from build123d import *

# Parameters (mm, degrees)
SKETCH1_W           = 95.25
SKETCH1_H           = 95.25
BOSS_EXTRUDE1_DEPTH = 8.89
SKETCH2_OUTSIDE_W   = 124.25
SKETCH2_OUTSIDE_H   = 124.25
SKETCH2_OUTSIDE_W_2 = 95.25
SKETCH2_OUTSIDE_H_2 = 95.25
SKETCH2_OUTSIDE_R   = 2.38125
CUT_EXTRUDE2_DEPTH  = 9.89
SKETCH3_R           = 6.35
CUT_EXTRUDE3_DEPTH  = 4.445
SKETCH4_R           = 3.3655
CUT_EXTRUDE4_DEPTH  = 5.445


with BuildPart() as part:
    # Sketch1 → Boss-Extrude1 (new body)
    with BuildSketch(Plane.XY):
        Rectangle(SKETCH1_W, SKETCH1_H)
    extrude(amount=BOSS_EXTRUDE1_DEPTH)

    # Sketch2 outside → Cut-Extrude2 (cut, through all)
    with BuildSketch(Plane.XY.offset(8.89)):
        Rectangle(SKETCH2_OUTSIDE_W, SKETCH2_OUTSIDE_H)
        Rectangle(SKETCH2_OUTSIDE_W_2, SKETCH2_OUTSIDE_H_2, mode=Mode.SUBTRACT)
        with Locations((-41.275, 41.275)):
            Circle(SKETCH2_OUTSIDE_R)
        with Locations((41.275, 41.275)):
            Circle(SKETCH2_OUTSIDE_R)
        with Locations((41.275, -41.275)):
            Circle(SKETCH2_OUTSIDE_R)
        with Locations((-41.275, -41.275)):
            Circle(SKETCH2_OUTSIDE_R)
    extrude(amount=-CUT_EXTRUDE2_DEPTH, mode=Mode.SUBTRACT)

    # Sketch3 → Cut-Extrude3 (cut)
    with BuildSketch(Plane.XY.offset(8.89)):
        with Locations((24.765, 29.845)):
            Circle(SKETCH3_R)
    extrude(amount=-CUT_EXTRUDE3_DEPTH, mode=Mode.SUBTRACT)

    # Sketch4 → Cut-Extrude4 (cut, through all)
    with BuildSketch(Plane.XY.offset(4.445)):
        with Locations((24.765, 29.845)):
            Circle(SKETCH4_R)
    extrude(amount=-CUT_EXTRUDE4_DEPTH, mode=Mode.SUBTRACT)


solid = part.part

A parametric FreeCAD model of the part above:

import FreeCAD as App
import Part
import Sketcher
from FreeCAD import Vector
Q = App.Units.Quantity


def add_polygon(sketch, points):
    """Adds a closed chain of lines whose ends are joined by coincident constraints."""
    first, n = sketch.GeometryCount, len(points)
    for a, b in zip(points, points[1:] + points[:1]):
        sketch.addGeometry(Part.LineSegment(App.Vector(*a, 0), App.Vector(*b, 0)), False)
    for i in range(n):
        sketch.addConstraint(Sketcher.Constraint("Coincident", first + i, 2, first + (i + 1) % n, 1))

doc = App.newDocument("Part")
params = doc.addObject("Spreadsheet::Sheet", "Params")
for row, (alias, value) in enumerate([
    ("sketch1_width", "3.75 in"),
    ("pad1_length", "0.35 in"),
    ("sketch2_diameter", "0.1875 in"),
    ("sketch2_width", "3.75 in"),
    ("sketch3_diameter", "0.5 in"),
    ("pocket2_length", "0.175 in"),
    ("sketch4_diameter", "0.265 in"),
], start=1):
    params.set(f"A{row}", alias)
    params.set(f"B{row}", "=" + value)
    params.setAlias(f"B{row}", alias)

body = doc.addObject("PartDesign::Body", "Body")

# Sketch on XY plane
sketch1 = body.newObject("Sketcher::SketchObject", "Sketch")
sketch1.AttachmentSupport = (doc.getObject("XY_Plane"), [""])
sketch1.MapMode = "FlatFace"
add_polygon(sketch1, [(-48, 48), (-48, -48), (48, -48), (48, 48)])  # lines 0-3
sketch1.addConstraint(Sketcher.Constraint("Vertical", 0))
sketch1.addConstraint(Sketcher.Constraint("Horizontal", 1))
sketch1.addConstraint(Sketcher.Constraint("Vertical", 2))
sketch1.addConstraint(Sketcher.Constraint("Horizontal", 3))
sketch1.addConstraint(Sketcher.Constraint("Symmetric", 0, 2, 2, 2, -1, 1))
sketch1.addConstraint(Sketcher.Constraint("Equal", 3, 0))
sketch1.addConstraint(Sketcher.Constraint("DistanceX", 1, 1, 1, 2, Q("3.75 in")))
sketch1.setExpression("Constraints[10]", "Params.sketch1_width")
pad1 = body.newObject("PartDesign::Pad", "Pad")
pad1.Profile = sketch1
pad1.setExpression("Length", "Params.pad1_length")

# Sketch on XY plane
sketch2 = body.newObject("Sketcher::SketchObject", "Sketch001")
sketch2.AttachmentSupport = (doc.getObject("XY_Plane"), [""])
sketch2.MapMode = "FlatFace"
sketch2.AttachmentOffset = App.Placement(Vector(0, 0, 0.35 * 25.4), App.Rotation())
add_polygon(sketch2, [(-62.1, 62.1), (-62.1, -62.1), (62.1, -62.1), (62.1, 62.1)])  # lines 0-3
add_polygon(sketch2, [(47.6, -47.6), (-47.6, -47.6), (-47.6, 47.6), (47.6, 47.6)])  # lines 4-7
sketch2.addGeometry(Part.Circle(Vector(-41.3, 41.3, 0), Vector(0, 0, 1), 2.4), False)  # 8
sketch2.addGeometry(Part.Circle(Vector(41.3, 41.3, 0), Vector(0, 0, 1), 2.4), False)  # 9
sketch2.addGeometry(Part.Circle(Vector(41.3, -41.3, 0), Vector(0, 0, 1), 2.4), False)  # 10
sketch2.addGeometry(Part.Circle(Vector(-41.3, -41.3, 0), Vector(0, 0, 1), 2.4), False)  # 11
sketch2.addConstraint(Sketcher.Constraint("Vertical", 0))
sketch2.addConstraint(Sketcher.Constraint("Horizontal", 1))
sketch2.addConstraint(Sketcher.Constraint("Vertical", 2))
sketch2.addConstraint(Sketcher.Constraint("Horizontal", 3))
sketch2.addConstraint(Sketcher.Constraint("Horizontal", 4))
sketch2.addConstraint(Sketcher.Constraint("Vertical", 5))
sketch2.addConstraint(Sketcher.Constraint("Horizontal", 6))
sketch2.addConstraint(Sketcher.Constraint("Vertical", 7))
sketch2.addConstraint(Sketcher.Constraint("Equal", 8, 9))
sketch2.addConstraint(Sketcher.Constraint("Equal", 9, 10))
sketch2.addConstraint(Sketcher.Constraint("Equal", 10, 11))
sketch2.addConstraint(Sketcher.Constraint("Symmetric", 8, 3, 10, 3, -1, 1))
sketch2.addConstraint(Sketcher.Constraint("Symmetric", 9, 3, 11, 3, -1, 1))
sketch2.addConstraint(Sketcher.Constraint("Symmetric", 0, 2, 2, 2, -1, 1))
sketch2.addConstraint(Sketcher.Constraint("Symmetric", 4, 2, 6, 2, -1, 1))
sketch2.addConstraint(Sketcher.Constraint("Symmetric", 8, 3, 9, 3, -2))
sketch2.addConstraint(Sketcher.Constraint("Equal", 3, 0))
sketch2.addConstraint(Sketcher.Constraint("Equal", 6, 5))
sketch2.addConstraint(Sketcher.Constraint("Diameter", 8, Q("0.1875 in")))
sketch2.addConstraint(Sketcher.Constraint("DistanceX", 4, 2, 4, 1, Q("3.75 in")))
sketch2.addConstraint(Sketcher.Constraint("DistanceY", 4, 2, 8, 3, Q("3.5 in")))
sketch2.addConstraint(Sketcher.Constraint("DistanceX", 4, 2, 10, 3, Q("3.5 in")))
sketch2.addConstraint(Sketcher.Constraint("DistanceX", 1, 1, 1, 2, Q("124.25 mm")))
sketch2.setExpression("Constraints[26]", "Params.sketch2_diameter")
sketch2.setExpression("Constraints[27]", "Params.sketch2_width")
pocket1 = body.newObject("PartDesign::Pocket", "Pocket")
pocket1.Profile = sketch2
pocket1.Type = "ThroughAll"

# Sketch on XY plane
sketch3 = body.newObject("Sketcher::SketchObject", "Sketch002")
sketch3.AttachmentSupport = (doc.getObject("XY_Plane"), [""])
sketch3.MapMode = "FlatFace"
sketch3.AttachmentOffset = App.Placement(Vector(0, 0, 0.35 * 25.4), App.Rotation())
sketch3.addGeometry(Part.Circle(Vector(25, 30, 0), Vector(0, 0, 1), 6), False)
sketch3.addConstraint(Sketcher.Constraint("Diameter", 0, Q("0.5 in")))
sketch3.addConstraint(Sketcher.Constraint("DistanceX", -1, 1, 0, 3, Q("0.975 in")))
sketch3.addConstraint(Sketcher.Constraint("DistanceY", -1, 1, 0, 3, Q("1.175 in")))
sketch3.setExpression("Constraints[0]", "Params.sketch3_diameter")
pocket2 = body.newObject("PartDesign::Pocket", "Pocket001")
pocket2.Profile = sketch3
pocket2.setExpression("Length", "Params.pocket2_length")

# Sketch on XY plane
sketch4 = body.newObject("Sketcher::SketchObject", "Sketch003")
sketch4.AttachmentSupport = (doc.getObject("XY_Plane"), [""])
sketch4.MapMode = "FlatFace"
sketch4.AttachmentOffset = App.Placement(Vector(0, 0, 0.175 * 25.4), App.Rotation())
sketch4.addGeometry(Part.Circle(Vector(24.8, 29.8, 0), Vector(0, 0, 1), 3.4), False)
sketch4.addConstraint(Sketcher.Constraint("Diameter", 0, Q("0.265 in")))
sketch4.addConstraint(Sketcher.Constraint("DistanceX", -1, 1, 0, 3, Q("0.975 in")))
sketch4.addConstraint(Sketcher.Constraint("DistanceY", -1, 1, 0, 3, Q("1.175 in")))
sketch4.setExpression("Constraints[0]", "Params.sketch4_diameter")
pocket3 = body.newObject("PartDesign::Pocket", "Pocket002")
pocket3.Profile = sketch4
pocket3.Type = "ThroughAll"

doc.recompute()
